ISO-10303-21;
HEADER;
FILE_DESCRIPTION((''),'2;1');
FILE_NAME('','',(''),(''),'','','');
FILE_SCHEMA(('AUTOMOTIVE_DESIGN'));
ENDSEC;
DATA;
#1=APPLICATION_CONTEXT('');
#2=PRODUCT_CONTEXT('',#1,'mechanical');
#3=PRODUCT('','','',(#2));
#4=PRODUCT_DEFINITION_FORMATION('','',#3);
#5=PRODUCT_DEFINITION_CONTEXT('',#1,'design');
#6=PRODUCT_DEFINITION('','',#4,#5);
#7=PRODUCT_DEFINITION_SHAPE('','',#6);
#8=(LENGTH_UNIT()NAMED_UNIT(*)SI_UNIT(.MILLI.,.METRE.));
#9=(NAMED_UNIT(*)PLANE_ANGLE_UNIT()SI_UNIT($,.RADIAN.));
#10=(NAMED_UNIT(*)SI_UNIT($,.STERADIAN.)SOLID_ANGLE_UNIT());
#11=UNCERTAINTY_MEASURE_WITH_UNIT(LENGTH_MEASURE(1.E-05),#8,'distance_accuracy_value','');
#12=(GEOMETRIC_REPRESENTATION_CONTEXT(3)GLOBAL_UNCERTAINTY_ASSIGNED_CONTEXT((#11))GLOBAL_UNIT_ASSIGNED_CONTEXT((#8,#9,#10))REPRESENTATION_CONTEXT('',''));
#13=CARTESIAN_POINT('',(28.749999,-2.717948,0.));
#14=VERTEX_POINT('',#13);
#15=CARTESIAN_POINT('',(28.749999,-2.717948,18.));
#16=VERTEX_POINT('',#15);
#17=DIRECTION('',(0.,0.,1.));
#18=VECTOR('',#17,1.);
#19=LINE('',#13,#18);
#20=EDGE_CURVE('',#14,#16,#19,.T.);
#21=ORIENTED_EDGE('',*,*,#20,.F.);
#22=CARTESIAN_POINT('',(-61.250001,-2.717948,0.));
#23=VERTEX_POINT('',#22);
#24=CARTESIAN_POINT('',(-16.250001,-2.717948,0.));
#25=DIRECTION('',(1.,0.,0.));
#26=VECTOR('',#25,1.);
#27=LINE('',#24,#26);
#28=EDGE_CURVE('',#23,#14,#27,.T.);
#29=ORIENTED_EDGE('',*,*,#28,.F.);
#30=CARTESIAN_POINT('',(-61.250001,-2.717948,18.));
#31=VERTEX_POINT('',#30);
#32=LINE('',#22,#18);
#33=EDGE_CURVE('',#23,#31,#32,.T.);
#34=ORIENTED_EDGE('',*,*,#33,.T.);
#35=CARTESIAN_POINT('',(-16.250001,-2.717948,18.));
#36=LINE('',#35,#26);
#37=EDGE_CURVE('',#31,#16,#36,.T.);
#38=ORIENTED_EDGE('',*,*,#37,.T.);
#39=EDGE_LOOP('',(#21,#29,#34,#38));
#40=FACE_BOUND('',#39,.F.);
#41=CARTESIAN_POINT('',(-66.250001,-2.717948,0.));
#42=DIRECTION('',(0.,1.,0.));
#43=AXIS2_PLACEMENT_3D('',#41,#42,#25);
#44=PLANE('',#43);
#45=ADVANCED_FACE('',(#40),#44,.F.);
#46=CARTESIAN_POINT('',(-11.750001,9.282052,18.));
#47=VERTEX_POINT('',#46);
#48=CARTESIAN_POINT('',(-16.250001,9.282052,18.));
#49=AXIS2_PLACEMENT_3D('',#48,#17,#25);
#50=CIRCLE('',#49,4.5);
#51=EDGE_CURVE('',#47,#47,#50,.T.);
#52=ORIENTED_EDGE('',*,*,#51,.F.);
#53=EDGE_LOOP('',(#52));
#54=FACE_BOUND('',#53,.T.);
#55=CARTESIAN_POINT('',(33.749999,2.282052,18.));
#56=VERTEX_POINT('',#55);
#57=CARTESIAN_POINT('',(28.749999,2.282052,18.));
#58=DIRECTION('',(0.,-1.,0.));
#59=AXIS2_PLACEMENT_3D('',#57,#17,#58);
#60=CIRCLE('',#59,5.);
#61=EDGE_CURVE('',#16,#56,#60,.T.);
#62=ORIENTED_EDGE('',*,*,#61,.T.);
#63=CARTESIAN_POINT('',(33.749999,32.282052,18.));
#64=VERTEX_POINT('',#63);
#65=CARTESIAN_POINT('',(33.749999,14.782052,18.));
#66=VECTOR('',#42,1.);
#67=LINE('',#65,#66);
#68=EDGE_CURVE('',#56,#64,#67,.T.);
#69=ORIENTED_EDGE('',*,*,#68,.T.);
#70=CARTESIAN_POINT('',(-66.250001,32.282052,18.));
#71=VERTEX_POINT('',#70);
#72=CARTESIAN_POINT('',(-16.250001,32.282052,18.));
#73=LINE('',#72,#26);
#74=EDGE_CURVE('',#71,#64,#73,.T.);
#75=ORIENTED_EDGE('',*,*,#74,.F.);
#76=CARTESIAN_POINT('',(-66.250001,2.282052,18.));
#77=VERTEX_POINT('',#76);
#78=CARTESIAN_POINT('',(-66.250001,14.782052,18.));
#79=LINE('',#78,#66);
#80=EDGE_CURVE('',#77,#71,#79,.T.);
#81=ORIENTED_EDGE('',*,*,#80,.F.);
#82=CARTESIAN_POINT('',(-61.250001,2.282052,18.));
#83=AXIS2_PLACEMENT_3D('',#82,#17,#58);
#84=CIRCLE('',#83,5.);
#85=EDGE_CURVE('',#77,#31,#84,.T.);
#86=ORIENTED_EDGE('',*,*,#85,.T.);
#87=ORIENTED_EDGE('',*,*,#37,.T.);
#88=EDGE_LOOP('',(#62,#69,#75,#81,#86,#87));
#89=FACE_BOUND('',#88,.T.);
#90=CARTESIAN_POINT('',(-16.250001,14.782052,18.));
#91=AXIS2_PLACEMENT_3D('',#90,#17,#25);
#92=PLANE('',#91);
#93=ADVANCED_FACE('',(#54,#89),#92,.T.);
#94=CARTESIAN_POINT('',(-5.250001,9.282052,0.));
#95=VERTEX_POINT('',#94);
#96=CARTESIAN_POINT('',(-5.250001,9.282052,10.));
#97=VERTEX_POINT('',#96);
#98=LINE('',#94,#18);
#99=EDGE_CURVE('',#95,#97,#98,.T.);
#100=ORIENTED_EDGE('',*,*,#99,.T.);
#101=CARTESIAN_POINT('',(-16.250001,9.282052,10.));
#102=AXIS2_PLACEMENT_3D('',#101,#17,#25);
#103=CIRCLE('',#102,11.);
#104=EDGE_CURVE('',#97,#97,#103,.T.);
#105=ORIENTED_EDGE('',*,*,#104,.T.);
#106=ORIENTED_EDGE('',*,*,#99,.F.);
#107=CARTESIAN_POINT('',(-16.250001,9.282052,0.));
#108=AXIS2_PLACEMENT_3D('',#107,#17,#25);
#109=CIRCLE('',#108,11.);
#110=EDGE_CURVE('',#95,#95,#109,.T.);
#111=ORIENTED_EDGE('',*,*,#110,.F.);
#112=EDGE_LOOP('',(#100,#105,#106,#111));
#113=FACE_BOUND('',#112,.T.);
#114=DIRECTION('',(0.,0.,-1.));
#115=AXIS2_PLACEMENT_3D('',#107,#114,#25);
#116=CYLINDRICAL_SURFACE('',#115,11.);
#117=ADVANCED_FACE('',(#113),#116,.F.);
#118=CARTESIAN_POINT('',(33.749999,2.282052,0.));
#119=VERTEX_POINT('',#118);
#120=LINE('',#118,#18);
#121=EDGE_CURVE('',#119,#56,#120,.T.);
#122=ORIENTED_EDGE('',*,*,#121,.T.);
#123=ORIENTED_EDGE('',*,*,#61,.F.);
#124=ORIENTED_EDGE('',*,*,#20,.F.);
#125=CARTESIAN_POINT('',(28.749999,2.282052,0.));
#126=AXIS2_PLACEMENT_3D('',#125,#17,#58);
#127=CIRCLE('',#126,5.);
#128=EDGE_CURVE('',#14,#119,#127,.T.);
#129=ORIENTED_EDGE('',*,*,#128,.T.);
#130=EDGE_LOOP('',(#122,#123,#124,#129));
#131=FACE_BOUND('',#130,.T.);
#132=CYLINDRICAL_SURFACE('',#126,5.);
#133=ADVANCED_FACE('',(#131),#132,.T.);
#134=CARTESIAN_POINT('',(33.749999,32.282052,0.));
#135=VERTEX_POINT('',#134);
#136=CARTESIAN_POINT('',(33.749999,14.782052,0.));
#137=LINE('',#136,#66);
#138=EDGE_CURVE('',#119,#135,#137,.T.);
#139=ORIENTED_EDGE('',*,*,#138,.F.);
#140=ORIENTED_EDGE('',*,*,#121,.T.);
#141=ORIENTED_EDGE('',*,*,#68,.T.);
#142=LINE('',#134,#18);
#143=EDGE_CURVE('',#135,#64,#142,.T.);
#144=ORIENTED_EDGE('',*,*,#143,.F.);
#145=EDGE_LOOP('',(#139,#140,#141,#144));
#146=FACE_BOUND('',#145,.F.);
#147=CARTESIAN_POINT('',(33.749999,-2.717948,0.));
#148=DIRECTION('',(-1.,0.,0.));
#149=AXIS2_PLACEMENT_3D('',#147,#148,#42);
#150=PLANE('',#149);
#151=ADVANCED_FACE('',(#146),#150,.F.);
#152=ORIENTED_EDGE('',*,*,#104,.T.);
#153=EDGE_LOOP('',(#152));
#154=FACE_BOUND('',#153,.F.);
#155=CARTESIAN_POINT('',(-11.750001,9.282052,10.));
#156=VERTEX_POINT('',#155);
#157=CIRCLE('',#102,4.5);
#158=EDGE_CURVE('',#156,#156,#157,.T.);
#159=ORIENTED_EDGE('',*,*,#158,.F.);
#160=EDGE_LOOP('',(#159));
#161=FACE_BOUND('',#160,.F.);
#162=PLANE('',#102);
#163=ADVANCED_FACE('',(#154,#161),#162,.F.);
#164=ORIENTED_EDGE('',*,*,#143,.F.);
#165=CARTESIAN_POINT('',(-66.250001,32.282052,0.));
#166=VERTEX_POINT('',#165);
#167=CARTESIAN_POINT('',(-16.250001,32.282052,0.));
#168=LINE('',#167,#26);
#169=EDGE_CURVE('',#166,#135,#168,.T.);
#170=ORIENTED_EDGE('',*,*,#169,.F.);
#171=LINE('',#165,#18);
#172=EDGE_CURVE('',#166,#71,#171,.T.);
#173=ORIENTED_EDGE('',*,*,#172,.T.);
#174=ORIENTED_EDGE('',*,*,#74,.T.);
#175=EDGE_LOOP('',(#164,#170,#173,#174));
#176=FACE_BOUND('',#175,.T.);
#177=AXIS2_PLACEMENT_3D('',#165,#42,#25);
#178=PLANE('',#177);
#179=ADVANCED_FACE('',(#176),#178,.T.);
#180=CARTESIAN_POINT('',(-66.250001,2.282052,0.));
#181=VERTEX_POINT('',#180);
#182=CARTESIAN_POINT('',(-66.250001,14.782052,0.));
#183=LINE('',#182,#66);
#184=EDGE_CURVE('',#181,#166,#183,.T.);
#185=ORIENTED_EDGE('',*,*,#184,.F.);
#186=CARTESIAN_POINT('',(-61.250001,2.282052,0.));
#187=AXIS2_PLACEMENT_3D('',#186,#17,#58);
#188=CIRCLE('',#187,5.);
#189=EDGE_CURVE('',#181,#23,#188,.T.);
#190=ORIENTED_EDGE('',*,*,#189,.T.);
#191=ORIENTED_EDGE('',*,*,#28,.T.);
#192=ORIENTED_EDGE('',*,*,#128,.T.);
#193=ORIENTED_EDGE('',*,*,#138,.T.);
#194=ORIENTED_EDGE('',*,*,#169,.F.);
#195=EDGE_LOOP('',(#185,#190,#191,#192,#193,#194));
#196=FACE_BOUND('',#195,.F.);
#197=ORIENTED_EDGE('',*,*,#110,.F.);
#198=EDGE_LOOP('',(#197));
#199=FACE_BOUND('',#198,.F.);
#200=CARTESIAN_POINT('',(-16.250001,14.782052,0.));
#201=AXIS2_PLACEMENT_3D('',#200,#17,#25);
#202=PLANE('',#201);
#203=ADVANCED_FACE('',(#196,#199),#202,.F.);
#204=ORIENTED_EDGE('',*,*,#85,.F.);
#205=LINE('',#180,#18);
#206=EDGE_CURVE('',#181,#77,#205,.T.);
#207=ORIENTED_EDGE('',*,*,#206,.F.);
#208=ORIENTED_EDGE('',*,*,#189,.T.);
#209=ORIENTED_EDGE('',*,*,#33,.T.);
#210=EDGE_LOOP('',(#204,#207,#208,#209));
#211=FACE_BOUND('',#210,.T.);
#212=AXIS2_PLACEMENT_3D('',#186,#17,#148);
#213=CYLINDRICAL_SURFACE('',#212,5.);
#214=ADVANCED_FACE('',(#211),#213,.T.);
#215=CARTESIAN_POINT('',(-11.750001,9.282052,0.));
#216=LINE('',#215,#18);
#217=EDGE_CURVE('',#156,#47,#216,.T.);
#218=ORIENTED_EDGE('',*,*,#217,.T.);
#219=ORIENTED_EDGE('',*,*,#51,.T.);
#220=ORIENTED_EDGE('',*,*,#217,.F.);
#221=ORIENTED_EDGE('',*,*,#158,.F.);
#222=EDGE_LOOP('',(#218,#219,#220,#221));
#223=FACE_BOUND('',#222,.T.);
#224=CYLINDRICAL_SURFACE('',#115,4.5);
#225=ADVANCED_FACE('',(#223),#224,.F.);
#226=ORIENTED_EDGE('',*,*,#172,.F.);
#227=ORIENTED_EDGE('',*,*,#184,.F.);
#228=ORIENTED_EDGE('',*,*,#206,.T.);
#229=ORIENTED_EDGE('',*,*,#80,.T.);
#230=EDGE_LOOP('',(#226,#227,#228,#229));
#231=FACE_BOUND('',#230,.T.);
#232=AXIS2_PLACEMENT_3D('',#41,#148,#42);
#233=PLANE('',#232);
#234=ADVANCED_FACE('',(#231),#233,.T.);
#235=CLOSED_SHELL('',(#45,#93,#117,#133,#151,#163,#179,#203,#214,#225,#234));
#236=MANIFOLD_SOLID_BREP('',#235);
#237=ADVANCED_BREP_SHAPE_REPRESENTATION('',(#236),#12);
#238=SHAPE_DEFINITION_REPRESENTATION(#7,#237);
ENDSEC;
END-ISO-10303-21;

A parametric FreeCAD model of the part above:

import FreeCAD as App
import Part
import Sketcher

V = App.Vector
Q = App.Units.Quantity


def edges_at(feature, points):
    """Names of the edges that pass closest to the given points."""
    edges = feature.Shape.Edges
    near = lambda p: min(range(len(edges)), key=lambda i: edges[i].distToShape(Part.Vertex(*p))[0])
    return sorted({f"Edge{near(p) + 1}" for p in points})

doc = App.newDocument("Part")
body = doc.addObject("PartDesign::Body", "Body")

# Sketch on XY plane
sketch1 = body.newObject("Sketcher::SketchObject", "Sketch")
sketch1.AttachmentSupport = (doc.getObject("XY_Plane"), [""])
sketch1.MapMode = "FlatFace"
sketch1.addGeometry([
    Part.LineSegment(V(-66.3, 32.3, 0), V(-66.3, -2.7, 0)),  # 0
    Part.LineSegment(V(-66.3, -2.7, 0), V(33.7, -2.7, 0)),  # 1
    Part.LineSegment(V(33.7, -2.7, 0), V(33.7, 32.3, 0)),  # 2
    Part.LineSegment(V(33.7, 32.3, 0), V(-66.3, 32.3, 0)),  # 3
    Part.Circle(V(-16.3, 9.3, 0), V(0, 0, 1), 4.5),  # 4
], False)
sketch1.addConstraint([
    Sketcher.Constraint("Coincident", 0, 2, 1, 1),
    Sketcher.Constraint("Coincident", 1, 2, 2, 1),
    Sketcher.Constraint("Coincident", 2, 2, 3, 1),
    Sketcher.Constraint("Coincident", 3, 2, 0, 1),
    Sketcher.Constraint("Vertical", 0),
    Sketcher.Constraint("Horizontal", 1),
    Sketcher.Constraint("Vertical", 2),
    Sketcher.Constraint("Horizontal", 3),
    Sketcher.Constraint("Diameter", 4, Q("9 mm")),
    Sketcher.Constraint("DistanceX", 1, 1, 1, 2, Q("100 mm")),
    Sketcher.Constraint("DistanceY", 0, 2, 0, 1, Q("35 mm")),
    Sketcher.Constraint("DistanceX", 0, 2, 4, 3, Q("50 mm")),
    Sketcher.Constraint("DistanceY", 0, 2, 4, 3, Q("12 mm")),
    Sketcher.Constraint("DistanceX", 4, 3, -1, 1, Q("16.250001 mm")),
    Sketcher.Constraint("DistanceY", -1, 1, 4, 3, Q("9.282052 mm")),
])
pad1 = body.newObject("PartDesign::Pad", "Pad")
pad1.Profile = sketch1
pad1.Length = 18

# Sketch on XY plane
sketch2 = body.newObject("Sketcher::SketchObject", "Sketch001")
sketch2.AttachmentSupport = (doc.getObject("XY_Plane"), [""])
sketch2.MapMode = "FlatFace"
sketch2.addGeometry([
    Part.Circle(V(-16.3, 9.3, 0), V(0, 0, 1), 11),
    Part.Circle(V(-16.3, 9.3, 0), V(0, 0, 1), 4.5),
], False)
sketch2.addConstraint([
    Sketcher.Constraint("Coincident", 1, 3, 0, 3),
    Sketcher.Constraint("Diameter", 0, Q("22 mm")),
    Sketcher.Constraint("Diameter", 1, Q("9 mm")),
    Sketcher.Constraint("DistanceX", 0, 3, -1, 1, Q("16.250001 mm")),
    Sketcher.Constraint("DistanceY", -1, 1, 0, 3, Q("9.282052 mm")),
])
pocket1 = body.newObject("PartDesign::Pocket", "Pocket")
pocket1.Profile = sketch2
pocket1.Length = 10
pocket1.Reversed = True
doc.recompute()

fillet = body.newObject("PartDesign::Fillet", "Fillet")
fillet.Base = (pocket1, edges_at(pocket1, [(33.75, -2.718, 9), (-66.25, -2.718, 9)]))
fillet.Radius = 5

doc.recompute()
